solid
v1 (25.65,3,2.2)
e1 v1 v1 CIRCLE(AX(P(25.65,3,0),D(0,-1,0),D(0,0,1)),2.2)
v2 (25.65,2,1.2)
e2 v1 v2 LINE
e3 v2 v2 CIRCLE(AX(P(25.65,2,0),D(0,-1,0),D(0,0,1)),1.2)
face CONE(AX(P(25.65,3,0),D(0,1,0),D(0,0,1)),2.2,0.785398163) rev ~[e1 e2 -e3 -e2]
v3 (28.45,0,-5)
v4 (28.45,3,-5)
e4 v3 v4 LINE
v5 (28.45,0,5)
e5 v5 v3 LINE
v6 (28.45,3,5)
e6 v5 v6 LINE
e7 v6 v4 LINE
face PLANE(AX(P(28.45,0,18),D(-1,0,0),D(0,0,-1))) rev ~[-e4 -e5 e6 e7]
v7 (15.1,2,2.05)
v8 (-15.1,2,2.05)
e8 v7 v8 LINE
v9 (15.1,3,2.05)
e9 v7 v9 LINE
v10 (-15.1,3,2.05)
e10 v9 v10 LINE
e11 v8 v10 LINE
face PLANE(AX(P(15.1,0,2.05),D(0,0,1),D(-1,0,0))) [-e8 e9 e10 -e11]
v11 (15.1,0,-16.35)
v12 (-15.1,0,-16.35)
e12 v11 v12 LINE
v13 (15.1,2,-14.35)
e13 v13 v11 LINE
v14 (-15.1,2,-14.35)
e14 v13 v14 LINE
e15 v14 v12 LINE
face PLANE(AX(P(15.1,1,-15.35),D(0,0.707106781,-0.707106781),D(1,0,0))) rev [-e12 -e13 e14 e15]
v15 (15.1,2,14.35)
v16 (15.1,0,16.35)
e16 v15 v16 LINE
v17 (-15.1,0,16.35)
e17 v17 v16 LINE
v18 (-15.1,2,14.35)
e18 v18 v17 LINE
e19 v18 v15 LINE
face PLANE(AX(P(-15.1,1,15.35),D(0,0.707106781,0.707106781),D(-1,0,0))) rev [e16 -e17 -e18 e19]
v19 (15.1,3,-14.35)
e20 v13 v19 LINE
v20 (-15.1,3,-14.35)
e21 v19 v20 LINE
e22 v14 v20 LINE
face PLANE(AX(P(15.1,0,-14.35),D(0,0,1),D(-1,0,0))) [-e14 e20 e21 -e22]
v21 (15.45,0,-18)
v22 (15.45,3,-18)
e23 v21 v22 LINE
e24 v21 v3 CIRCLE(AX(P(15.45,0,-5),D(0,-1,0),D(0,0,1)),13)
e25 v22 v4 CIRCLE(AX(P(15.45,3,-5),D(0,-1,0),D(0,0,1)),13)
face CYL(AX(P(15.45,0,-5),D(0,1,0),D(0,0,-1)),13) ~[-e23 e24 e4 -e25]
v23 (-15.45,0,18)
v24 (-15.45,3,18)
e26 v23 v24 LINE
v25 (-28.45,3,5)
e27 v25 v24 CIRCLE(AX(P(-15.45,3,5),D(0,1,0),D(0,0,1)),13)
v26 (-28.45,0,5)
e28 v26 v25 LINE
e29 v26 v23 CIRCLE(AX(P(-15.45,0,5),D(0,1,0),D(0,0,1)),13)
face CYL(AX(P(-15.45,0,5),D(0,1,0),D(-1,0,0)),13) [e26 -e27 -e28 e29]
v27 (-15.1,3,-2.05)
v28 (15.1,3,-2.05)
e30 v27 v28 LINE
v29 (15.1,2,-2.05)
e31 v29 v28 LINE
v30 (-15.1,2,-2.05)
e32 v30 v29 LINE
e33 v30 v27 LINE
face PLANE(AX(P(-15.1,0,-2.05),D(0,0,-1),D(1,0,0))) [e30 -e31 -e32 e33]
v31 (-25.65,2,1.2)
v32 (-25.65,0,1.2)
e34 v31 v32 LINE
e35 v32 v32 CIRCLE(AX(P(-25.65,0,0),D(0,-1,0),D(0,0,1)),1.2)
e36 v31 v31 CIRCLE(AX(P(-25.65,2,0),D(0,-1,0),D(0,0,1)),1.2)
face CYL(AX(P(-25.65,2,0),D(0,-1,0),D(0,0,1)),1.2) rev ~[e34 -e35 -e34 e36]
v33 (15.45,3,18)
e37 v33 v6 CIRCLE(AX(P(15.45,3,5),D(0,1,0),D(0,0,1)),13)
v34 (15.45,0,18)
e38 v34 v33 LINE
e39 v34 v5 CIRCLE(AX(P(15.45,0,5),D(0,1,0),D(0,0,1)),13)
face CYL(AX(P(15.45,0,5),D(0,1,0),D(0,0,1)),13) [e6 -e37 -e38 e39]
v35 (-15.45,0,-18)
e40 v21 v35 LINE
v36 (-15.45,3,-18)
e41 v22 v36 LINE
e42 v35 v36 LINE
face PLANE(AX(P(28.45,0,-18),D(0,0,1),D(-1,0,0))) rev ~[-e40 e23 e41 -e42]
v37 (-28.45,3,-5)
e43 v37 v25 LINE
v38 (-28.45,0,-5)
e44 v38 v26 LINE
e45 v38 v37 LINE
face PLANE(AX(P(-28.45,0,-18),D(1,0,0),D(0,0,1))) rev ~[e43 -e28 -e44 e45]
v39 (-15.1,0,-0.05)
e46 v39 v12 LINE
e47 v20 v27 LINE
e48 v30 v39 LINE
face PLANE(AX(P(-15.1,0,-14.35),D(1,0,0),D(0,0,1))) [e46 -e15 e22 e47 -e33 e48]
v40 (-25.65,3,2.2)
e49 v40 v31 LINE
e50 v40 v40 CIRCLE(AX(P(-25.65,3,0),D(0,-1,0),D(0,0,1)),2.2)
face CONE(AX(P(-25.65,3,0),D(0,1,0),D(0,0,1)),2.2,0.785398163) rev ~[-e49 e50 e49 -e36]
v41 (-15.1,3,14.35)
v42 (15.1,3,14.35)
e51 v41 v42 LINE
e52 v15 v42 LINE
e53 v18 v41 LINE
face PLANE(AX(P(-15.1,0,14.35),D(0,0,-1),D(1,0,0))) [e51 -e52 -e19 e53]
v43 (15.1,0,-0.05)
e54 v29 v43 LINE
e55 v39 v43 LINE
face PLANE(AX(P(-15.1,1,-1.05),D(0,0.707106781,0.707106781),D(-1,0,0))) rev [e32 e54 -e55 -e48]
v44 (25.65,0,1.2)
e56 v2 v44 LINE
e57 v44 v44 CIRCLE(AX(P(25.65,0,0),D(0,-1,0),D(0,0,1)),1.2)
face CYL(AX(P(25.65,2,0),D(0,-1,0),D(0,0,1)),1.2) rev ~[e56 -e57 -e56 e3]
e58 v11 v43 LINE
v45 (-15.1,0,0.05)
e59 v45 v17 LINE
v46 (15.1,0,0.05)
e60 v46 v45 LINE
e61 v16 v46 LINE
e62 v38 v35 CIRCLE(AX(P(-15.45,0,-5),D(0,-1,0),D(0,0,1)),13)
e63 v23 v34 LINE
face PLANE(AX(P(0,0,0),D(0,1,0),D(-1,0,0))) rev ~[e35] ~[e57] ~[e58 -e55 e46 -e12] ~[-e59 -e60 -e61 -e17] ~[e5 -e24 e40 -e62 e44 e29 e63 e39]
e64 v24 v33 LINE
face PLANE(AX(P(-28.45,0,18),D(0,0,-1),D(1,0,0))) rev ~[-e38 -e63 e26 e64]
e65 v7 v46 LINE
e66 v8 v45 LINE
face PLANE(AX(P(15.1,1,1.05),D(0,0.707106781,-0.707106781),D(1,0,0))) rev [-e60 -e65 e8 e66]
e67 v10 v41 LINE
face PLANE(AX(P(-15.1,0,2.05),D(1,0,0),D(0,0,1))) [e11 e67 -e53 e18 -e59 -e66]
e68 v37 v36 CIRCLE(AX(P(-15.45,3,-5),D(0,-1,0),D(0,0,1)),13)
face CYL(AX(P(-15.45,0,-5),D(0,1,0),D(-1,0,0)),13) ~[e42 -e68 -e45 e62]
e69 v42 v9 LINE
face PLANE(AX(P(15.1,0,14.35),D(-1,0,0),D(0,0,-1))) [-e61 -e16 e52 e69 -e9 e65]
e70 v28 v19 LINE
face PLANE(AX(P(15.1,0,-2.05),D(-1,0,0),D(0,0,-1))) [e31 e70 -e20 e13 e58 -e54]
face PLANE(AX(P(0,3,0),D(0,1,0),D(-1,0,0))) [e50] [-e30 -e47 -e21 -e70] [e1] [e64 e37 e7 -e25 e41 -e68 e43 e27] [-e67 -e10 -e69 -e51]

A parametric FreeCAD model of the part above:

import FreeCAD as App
import Part
import Sketcher

V = App.Vector
Q = App.Units.Quantity


def edges_at(feature, points):
    """Names of the edges that pass closest to the given points."""
    edges = feature.Shape.Edges
    near = lambda p: min(range(len(edges)), key=lambda i: edges[i].distToShape(Part.Vertex(*p))[0])
    return sorted({f"Edge{near(p) + 1}" for p in points})

doc = App.newDocument("Part")
body = doc.addObject("PartDesign::Body", "Body")

# Sketch on XZ plane
sketch1 = body.newObject("Sketcher::SketchObject", "Sketch")
sketch1.AttachmentSupport = (doc.getObject("XZ_Plane"), [""])
sketch1.MapMode = "FlatFace"
sketch1.addGeometry([
    Part.LineSegment(V(-28.45, -18, 0), V(-28.45, 18, 0)),  # 0
    Part.LineSegment(V(-28.45, 18, 0), V(28.45, 18, 0)),  # 1
    Part.LineSegment(V(28.45, 18, 0), V(28.45, -18, 0)),  # 2
    Part.LineSegment(V(28.45, -18, 0), V(-28.45, -18, 0)),  # 3
    Part.LineSegment(V(15.1, -2.05, 0), V(-15.1, -2.05, 0)),  # 4
    Part.LineSegment(V(-15.1, -2.05, 0), V(-15.1, -14.35, 0)),  # 5
    Part.LineSegment(V(-15.1, -14.35, 0), V(15.1, -14.35, 0)),  # 6
    Part.LineSegment(V(15.1, -14.35, 0), V(15.1, -2.05, 0)),  # 7
    Part.LineSegment(V(15.1, 14.35, 0), V(-15.1, 14.35, 0)),  # 8
    Part.LineSegment(V(-15.1, 14.35, 0), V(-15.1, 2.05, 0)),  # 9
    Part.LineSegment(V(-15.1, 2.05, 0), V(15.1, 2.05, 0)),  # 10
    Part.LineSegment(V(15.1, 2.05, 0), V(15.1, 14.35, 0)),  # 11
], False)
sketch1.addConstraint([
    Sketcher.Constraint("Coincident", 0, 2, 1, 1),
    Sketcher.Constraint("Coincident", 1, 2, 2, 1),
    Sketcher.Constraint("Coincident", 2, 2, 3, 1),
    Sketcher.Constraint("Coincident", 3, 2, 0, 1),
    Sketcher.Constraint("Coincident", 4, 2, 5, 1),
    Sketcher.Constraint("Coincident", 5, 2, 6, 1),
    Sketcher.Constraint("Coincident", 6, 2, 7, 1),
    Sketcher.Constraint("Coincident", 7, 2, 4, 1),
    Sketcher.Constraint("Coincident", 8, 2, 9, 1),
    Sketcher.Constraint("Coincident", 9, 2, 10, 1),
    Sketcher.Constraint("Coincident", 10, 2, 11, 1),
    Sketcher.Constraint("Coincident", 11, 2, 8, 1),
    Sketcher.Constraint("Vertical", 0),
    Sketcher.Constraint("Horizontal", 1),
    Sketcher.Constraint("Vertical", 2),
    Sketcher.Constraint("Horizontal", 3),
    Sketcher.Constraint("Horizontal", 4),
    Sketcher.Constraint("Vertical", 5),
    Sketcher.Constraint("Horizontal", 6),
    Sketcher.Constraint("Vertical", 7),
    Sketcher.Constraint("Horizontal", 8),
    Sketcher.Constraint("Vertical", 9),
    Sketcher.Constraint("Horizontal", 10),
    Sketcher.Constraint("Vertical", 11),
    Sketcher.Constraint("Symmetric", 0, 2, 2, 2, -1, 1),
    Sketcher.Constraint("Symmetric", 6, 2, 8, 2, -1, 1),
    Sketcher.Constraint("Symmetric", 4, 2, 10, 2, -1, 1),
    Sketcher.Constraint("Vertical", 5, 2, 8, 2),
    Sketcher.Constraint("DistanceY", 0, 1, 0, 2, Q("36 mm")),
    Sketcher.Constraint("DistanceX", 1, 1, 1, 2, Q("56.9 mm")),
    Sketcher.Constraint("DistanceX", 4, 2, 4, 1, Q("30.2 mm")),
    Sketcher.Constraint("DistanceY", 5, 2, 5, 1, Q("12.3 mm")),
    Sketcher.Constraint("DistanceY", 4, 2, 9, 2, Q("4.1 mm")),
])
pad1 = body.newObject("PartDesign::Pad", "Pad")
pad1.Profile = sketch1
pad1.Length = 3
pad1.Reversed = True
doc.recompute()

chamfer = body.newObject("PartDesign::Chamfer", "Chamfer")
chamfer.Base = (pad1, edges_at(pad1, [
    (0, 0, 2.05),
    (0, 0, -14.35),
    (0, 0, -2.05),
    (0, 0, 14.35),
]))
chamfer.Size = 2

# Sketch on XZ plane
sketch2 = body.newObject("Sketcher::SketchObject", "Sketch001")
sketch2.AttachmentSupport = (doc.getObject("XZ_Plane"), [""])
sketch2.MapMode = "FlatFace"
sketch2.AttachmentOffset = App.Placement(V(0, 0, -3), App.Rotation())
sketch2.addGeometry([
    Part.Circle(V(-25.65, 0, 0), V(0, 0, 1), 1.2),
    Part.Circle(V(25.65, 0, 0), V(0, 0, 1), 1.2),
], False)
sketch2.addConstraint([
    Sketcher.Constraint("Equal", 0, 1),
    Sketcher.Constraint("Symmetric", 0, 3, 1, 3, -1, 1),
    Sketcher.Constraint("PointOnObject", 0, 3, -1),
    Sketcher.Constraint("Diameter", 0, Q("2.4 mm")),
    Sketcher.Constraint("DistanceX", 0, 3, 1, 3, Q("51.3 mm")),
])
doc.recompute()
hole = body.newObject("PartDesign::Hole", "Hole")
hole.Profile = sketch2
hole.ThreadType = "None"
hole.Diameter = 2.4
hole.DepthType = "ThroughAll"
hole.HoleCutType = "Countersink"
hole.HoleCutDiameter = 4.4
hole.HoleCutCountersinkAngle = 90
hole.Reversed = True
doc.recompute()

fillet = body.newObject("PartDesign::Fillet", "Fillet")
fillet.Base = (hole, edges_at(hole, [
    (28.45, 1.5, -18),
    (28.45, 1.5, 18),
    (-28.45, 1.5, -18),
    (-28.45, 1.5, 18),
]))
fillet.Radius = 13

doc.recompute()
